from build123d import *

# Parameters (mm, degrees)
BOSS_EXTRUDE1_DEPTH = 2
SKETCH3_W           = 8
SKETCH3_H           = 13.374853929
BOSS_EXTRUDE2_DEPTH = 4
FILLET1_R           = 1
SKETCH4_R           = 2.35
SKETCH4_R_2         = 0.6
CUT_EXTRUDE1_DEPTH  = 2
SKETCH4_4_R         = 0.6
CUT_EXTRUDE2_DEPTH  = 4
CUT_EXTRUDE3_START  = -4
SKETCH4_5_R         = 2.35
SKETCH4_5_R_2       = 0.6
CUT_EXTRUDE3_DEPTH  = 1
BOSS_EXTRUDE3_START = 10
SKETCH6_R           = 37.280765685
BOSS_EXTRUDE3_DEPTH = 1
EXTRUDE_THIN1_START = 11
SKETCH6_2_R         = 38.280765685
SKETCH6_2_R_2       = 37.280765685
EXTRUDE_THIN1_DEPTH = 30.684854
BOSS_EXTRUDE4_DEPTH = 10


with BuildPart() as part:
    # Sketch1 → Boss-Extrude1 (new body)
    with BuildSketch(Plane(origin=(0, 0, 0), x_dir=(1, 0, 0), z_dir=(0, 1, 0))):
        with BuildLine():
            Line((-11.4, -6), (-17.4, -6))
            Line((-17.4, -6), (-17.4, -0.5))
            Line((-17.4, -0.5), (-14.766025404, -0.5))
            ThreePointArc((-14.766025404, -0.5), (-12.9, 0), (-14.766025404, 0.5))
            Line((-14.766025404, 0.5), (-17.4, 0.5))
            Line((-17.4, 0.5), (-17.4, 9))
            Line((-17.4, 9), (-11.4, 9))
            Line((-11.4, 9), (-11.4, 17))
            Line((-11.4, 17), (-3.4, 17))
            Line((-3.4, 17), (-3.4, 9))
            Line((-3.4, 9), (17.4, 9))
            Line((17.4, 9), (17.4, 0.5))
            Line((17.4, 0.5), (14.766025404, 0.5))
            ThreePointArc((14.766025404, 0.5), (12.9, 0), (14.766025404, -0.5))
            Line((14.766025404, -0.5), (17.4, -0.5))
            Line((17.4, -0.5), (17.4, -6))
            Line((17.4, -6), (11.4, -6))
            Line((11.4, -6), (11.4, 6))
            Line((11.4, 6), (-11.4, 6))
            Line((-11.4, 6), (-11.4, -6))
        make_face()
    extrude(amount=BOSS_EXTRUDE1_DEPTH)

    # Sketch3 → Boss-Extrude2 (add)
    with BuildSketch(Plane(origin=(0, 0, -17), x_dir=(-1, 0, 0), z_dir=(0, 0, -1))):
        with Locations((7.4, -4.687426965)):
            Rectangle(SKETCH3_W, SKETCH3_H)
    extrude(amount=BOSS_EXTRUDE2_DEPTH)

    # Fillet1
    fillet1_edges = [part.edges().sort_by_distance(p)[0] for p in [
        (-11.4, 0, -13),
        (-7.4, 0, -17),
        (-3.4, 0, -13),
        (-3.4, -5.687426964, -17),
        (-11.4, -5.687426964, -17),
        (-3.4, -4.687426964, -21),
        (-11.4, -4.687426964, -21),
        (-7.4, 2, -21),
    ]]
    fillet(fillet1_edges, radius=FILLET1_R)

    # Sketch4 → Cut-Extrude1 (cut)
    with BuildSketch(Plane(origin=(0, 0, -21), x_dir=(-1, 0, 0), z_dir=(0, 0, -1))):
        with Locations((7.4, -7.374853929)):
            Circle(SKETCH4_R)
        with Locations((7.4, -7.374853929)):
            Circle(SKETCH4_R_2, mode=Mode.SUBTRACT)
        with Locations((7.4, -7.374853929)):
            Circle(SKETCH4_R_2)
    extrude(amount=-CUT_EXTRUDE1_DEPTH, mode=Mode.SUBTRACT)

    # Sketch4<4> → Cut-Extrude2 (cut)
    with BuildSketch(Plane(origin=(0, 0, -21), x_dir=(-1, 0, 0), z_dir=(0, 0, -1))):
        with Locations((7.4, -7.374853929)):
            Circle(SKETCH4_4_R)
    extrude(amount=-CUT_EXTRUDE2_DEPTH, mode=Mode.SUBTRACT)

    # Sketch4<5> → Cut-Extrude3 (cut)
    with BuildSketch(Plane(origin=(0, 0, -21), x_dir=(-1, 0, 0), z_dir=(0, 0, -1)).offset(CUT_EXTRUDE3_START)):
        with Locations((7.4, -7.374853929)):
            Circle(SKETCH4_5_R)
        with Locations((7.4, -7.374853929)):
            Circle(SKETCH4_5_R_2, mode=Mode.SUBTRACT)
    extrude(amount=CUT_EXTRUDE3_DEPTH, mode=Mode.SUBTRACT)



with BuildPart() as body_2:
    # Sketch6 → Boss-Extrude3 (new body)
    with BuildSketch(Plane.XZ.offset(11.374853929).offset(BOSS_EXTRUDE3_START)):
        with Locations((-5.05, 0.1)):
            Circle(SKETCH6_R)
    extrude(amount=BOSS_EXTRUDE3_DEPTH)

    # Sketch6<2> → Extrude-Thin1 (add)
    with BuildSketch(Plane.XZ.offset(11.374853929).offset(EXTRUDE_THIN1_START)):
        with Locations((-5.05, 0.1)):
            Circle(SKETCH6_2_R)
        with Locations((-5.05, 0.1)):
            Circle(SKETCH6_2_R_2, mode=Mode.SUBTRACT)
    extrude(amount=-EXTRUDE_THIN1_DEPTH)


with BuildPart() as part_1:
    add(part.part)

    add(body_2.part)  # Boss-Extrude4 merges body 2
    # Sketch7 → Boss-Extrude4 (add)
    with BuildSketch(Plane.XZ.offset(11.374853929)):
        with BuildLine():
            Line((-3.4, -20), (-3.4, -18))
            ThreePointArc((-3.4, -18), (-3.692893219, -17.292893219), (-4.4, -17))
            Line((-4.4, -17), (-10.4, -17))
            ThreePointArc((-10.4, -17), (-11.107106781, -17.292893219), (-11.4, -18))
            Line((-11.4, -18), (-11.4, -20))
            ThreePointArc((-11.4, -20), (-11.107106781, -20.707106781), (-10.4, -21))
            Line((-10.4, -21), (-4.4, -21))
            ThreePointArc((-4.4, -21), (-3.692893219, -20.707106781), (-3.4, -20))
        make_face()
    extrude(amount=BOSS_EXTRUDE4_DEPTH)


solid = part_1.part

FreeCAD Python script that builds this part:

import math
import FreeCAD as App
import Part
import Sketcher


def edges_at(feature, points):
    """Names of the edges that pass closest to the given points."""
    edges = feature.Shape.Edges
    near = lambda p: min(range(len(edges)), key=lambda i: edges[i].distToShape(Part.Vertex(*p))[0])
    return sorted({f"Edge{near(p) + 1}" for p in points})

doc = App.newDocument("Part")
body = doc.addObject("PartDesign::Body", "Body")

# Sketch on XZ plane
sketch1 = body.newObject("Sketcher::SketchObject", "Sketch")
sketch1.AttachmentSupport = (doc.getObject("XZ_Plane"), [""])
sketch1.MapMode = "FlatFace"
sketch1.addGeometry([
    Part.LineSegment(App.Vector(-17.4, 6, 0), App.Vector(-11.4, 6, 0)),  # 0
    Part.LineSegment(App.Vector(-11.4, 6, 0), App.Vector(-11.4, -6, 0)),  # 1
    Part.LineSegment(App.Vector(-11.4, -6, 0), App.Vector(11.4, -6, 0)),  # 2
    Part.LineSegment(App.Vector(11.4, -6, 0), App.Vector(11.4, 6, 0)),  # 3
    Part.LineSegment(App.Vector(11.4, 6, 0), App.Vector(17.4, 6, 0)),  # 4
    Part.LineSegment(App.Vector(17.4, 6, 0), App.Vector(17.4, 0.5, 0)),  # 5
    Part.LineSegment(App.Vector(17.4, 0.5, 0), App.Vector(14.8, 0.5, 0)),  # 6
    Part.ArcOfCircle(Part.Circle(App.Vector(13.9, 0, 0), App.Vector(0, 0, 1), 1), math.radians(30), math.radians(330)),  # 7
    Part.LineSegment(App.Vector(14.8, -0.5, 0), App.Vector(17.4, -0.5, 0)),  # 8
    Part.LineSegment(App.Vector(17.4, -0.5, 0), App.Vector(17.4, -9, 0)),  # 9
    Part.LineSegment(App.Vector(17.4, -9, 0), App.Vector(-3.4, -9, 0)),  # 10
    Part.LineSegment(App.Vector(-3.4, -9, 0), App.Vector(-3.4, -17, 0)),  # 11
    Part.LineSegment(App.Vector(-3.4, -17, 0), App.Vector(-11.4, -17, 0)),  # 12
    Part.LineSegment(App.Vector(-11.4, -17, 0), App.Vector(-11.4, -9, 0)),  # 13
    Part.LineSegment(App.Vector(-11.4, -9, 0), App.Vector(-17.4, -9, 0)),  # 14
    Part.LineSegment(App.Vector(-17.4, -9, 0), App.Vector(-17.4, -0.5, 0)),  # 15
    Part.LineSegment(App.Vector(-17.4, -0.5, 0), App.Vector(-14.8, -0.5, 0)),  # 16
    Part.ArcOfCircle(Part.Circle(App.Vector(-13.9, 0, 0), App.Vector(0, 0, 1), 1), math.radians(-150), math.radians(150)),  # 17
    Part.LineSegment(App.Vector(-14.8, 0.5, 0), App.Vector(-17.4, 0.5, 0)),  # 18
    Part.LineSegment(App.Vector(-17.4, 0.5, 0), App.Vector(-17.4, 6, 0)),  # 19
], False)
sketch1.addConstraint([
    Sketcher.Constraint("Coincident", 0, 2, 1, 1),
    Sketcher.Constraint("Coincident", 1, 2, 2, 1),
    Sketcher.Constraint("Coincident", 2, 2, 3, 1),
    Sketcher.Constraint("Coincident", 3, 2, 4, 1),
    Sketcher.Constraint("Coincident", 4, 2, 5, 1),
    Sketcher.Constraint("Coincident", 5, 2, 6, 1),
    Sketcher.Constraint("Coincident", 6, 2, 7, 1),
    Sketcher.Constraint("Coincident", 7, 2, 8, 1),
    Sketcher.Constraint("Coincident", 8, 2, 9, 1),
    Sketcher.Constraint("Coincident", 9, 2, 10, 1),
    Sketcher.Constraint("Coincident", 10, 2, 11, 1),
    Sketcher.Constraint("Coincident", 11, 2, 12, 1),
    Sketcher.Constraint("Coincident", 12, 2, 13, 1),
    Sketcher.Constraint("Coincident", 13, 2, 14, 1),
    Sketcher.Constraint("Coincident", 14, 2, 15, 1),
    Sketcher.Constraint("Coincident", 15, 2, 16, 1),
    Sketcher.Constraint("Coincident", 16, 2, 17, 1),
    Sketcher.Constraint("Coincident", 17, 2, 18, 1),
    Sketcher.Constraint("Coincident", 18, 2, 19, 1),
    Sketcher.Constraint("Coincident", 19, 2, 0, 1),
    Sketcher.Constraint("Horizontal", 0),
    Sketcher.Constraint("Vertical", 1),
    Sketcher.Constraint("Horizontal", 2),
    Sketcher.Constraint("Vertical", 3),
    Sketcher.Constraint("Horizontal", 4),
    Sketcher.Constraint("Vertical", 5),
    Sketcher.Constraint("Horizontal", 6),
    Sketcher.Constraint("Horizontal", 8),
    Sketcher.Constraint("Vertical", 9),
    Sketcher.Constraint("Horizontal", 10),
    Sketcher.Constraint("Vertical", 11),
    Sketcher.Constraint("Horizontal", 12),
    Sketcher.Constraint("Vertical", 13),
    Sketcher.Constraint("Horizontal", 14),
    Sketcher.Constraint("Vertical", 15),
    Sketcher.Constraint("Horizontal", 16),
    Sketcher.Constraint("Horizontal", 18),
    Sketcher.Constraint("Vertical", 19),
    Sketcher.Constraint("Equal", 7, 17),
    Sketcher.Constraint("Symmetric", 7, 3, 17, 3, -1, 1),
    Sketcher.Constraint("Symmetric", 0, 2, 2, 2, -1, 1),
    Sketcher.Constraint("Symmetric", 5, 2, 15, 2, -1, 1),
    Sketcher.Constraint("Symmetric", 8, 2, 18, 2, -1, 1),
    Sketcher.Constraint("Symmetric", 9, 2, 14, 2, -2),
    Sketcher.Constraint("Symmetric", 7, 2, 16, 2, -2),
    Sketcher.Constraint("Horizontal", 0, 2, 3, 2),
    Sketcher.Constraint("Vertical", 1, 2, 12, 2),
    Sketcher.Constraint("Equal", 12, 11),
    Sketcher.Constraint("Radius", 7, 1.0),
    Sketcher.Constraint("DistanceX", 0, 1, 0, 2, 6.0),
    Sketcher.Constraint("DistanceX", 12, 2, 12, 1, 8.0),
    Sketcher.Constraint("DistanceY", 1, 2, 1, 1, 12.0),
    Sketcher.Constraint("DistanceX", 2, 1, 2, 2, 22.8),
    Sketcher.Constraint("DistanceY", 5, 2, 5, 1, 5.5),
    Sketcher.Constraint("DistanceY", 9, 2, 9, 1, 8.5),
    Sketcher.Constraint("DistanceX", -1, 1, 7, 3, 13.9),
])
pad1 = body.newObject("PartDesign::Pad", "Pad")
pad1.Profile = sketch1
pad1.Length = 2
pad1.Reversed = True

# Sketch on XY plane
sketch2 = body.newObject("Sketcher::SketchObject", "Sketch001")
sketch2.AttachmentSupport = (doc.getObject("XY_Plane"), [""])
sketch2.MapMode = "FlatFace"
sketch2.AttachmentOffset = App.Placement(App.Vector(0, 0, -17), App.Rotation())
sketch2.addGeometry([
    Part.LineSegment(App.Vector(-3, 2, 0), App.Vector(-3, -11, 0)),
    Part.LineSegment(App.Vector(-3, -11, 0), App.Vector(-11, -11, 0)),
    Part.LineSegment(App.Vector(-11, -11, 0), App.Vector(-11, 2, 0)),
    Part.LineSegment(App.Vector(-11, 2, 0), App.Vector(-3, 2, 0)),
], False)
sketch2.addConstraint([
    Sketcher.Constraint("Coincident", 0, 2, 1, 1),
    Sketcher.Constraint("Coincident", 1, 2, 2, 1),
    Sketcher.Constraint("Coincident", 2, 2, 3, 1),
    Sketcher.Constraint("Coincident", 3, 2, 0, 1),
    Sketcher.Constraint("Vertical", 0),
    Sketcher.Constraint("Horizontal", 1),
    Sketcher.Constraint("Vertical", 2),
    Sketcher.Constraint("Horizontal", 3),
    Sketcher.Constraint("DistanceX", 1, 2, 1, 1, 8.0),
    Sketcher.Constraint("DistanceY", -1, 1, 2, 2, 2.0),
    Sketcher.Constraint("DistanceX", 0, 2, -1, 1, 3.4),
    Sketcher.Constraint("DistanceY", 0, 2, 0, 1, 13.374854),
])
pad2 = body.newObject("PartDesign::Pad", "Pad001")
pad2.Profile = sketch2
pad2.Length = 4
pad2.Reversed = True
doc.recompute()

fillet = body.newObject("PartDesign::Fillet", "Fillet")
fillet.Base = (pad2, edges_at(pad2, [
    (-11.4, 0, -13),
    (-7.4, 0, -17),
    (-3.4, 0, -13),
    (-3.4, -5.687, -17),
    (-11.4, -5.687, -17),
    (-3.4, -4.687, -21),
    (-11.4, -4.687, -21),
    (-7.4, 2, -21),
]))
fillet.Radius = 1

# Sketch on XY plane
sketch3 = body.newObject("Sketcher::SketchObject", "Sketch002")
sketch3.AttachmentSupport = (doc.getObject("XY_Plane"), [""])
sketch3.MapMode = "FlatFace"
sketch3.AttachmentOffset = App.Placement(App.Vector(0, 0, -21), App.Rotation())
sketch3.addGeometry(Part.Circle(App.Vector(-7.4, -7.4, 0), App.Vector(0, 0, 1), 2.4), False)
sketch3.addConstraint([
    Sketcher.Constraint("Diameter", 0, 4.7),
    Sketcher.Constraint("DistanceX", 0, 3, -1, 1, 7.4),
    Sketcher.Constraint("DistanceY", 0, 3, -1, 1, 7.374854),
])
pocket1 = body.newObject("PartDesign::Pocket", "Pocket")
pocket1.Profile = sketch3
pocket1.Length = 2
pocket1.Reversed = True

# Sketch on XY plane
sketch4 = body.newObject("Sketcher::SketchObject", "Sketch003")
sketch4.AttachmentSupport = (doc.getObject("XY_Plane"), [""])
sketch4.MapMode = "FlatFace"
sketch4.AttachmentOffset = App.Placement(App.Vector(0, 0, -21), App.Rotation())
sketch4.addGeometry(Part.Circle(App.Vector(-7.4, -7.4, 0), App.Vector(0, 0, 1), 0.6), False)
sketch4.addConstraint([
    Sketcher.Constraint("Diameter", 0, 1.2),
    Sketcher.Constraint("DistanceX", 0, 3, -1, 1, 7.4),
    Sketcher.Constraint("DistanceY", 0, 3, -1, 1, 7.374854),
])
pocket2 = body.newObject("PartDesign::Pocket", "Pocket001")
pocket2.Profile = sketch4
pocket2.Length = 4
pocket2.Reversed = True

# Sketch on XY plane
sketch5 = body.newObject("Sketcher::SketchObject", "Sketch004")
sketch5.AttachmentSupport = (doc.getObject("XY_Plane"), [""])
sketch5.MapMode = "FlatFace"
sketch5.AttachmentOffset = App.Placement(App.Vector(0, 0, -17), App.Rotation())
sketch5.addGeometry([
    Part.Circle(App.Vector(-7.4, -7.4, 0), App.Vector(0, 0, 1), 2.4),
    Part.Circle(App.Vector(-7.4, -7.4, 0), App.Vector(0, 0, 1), 0.6),
], False)
sketch5.addConstraint([
    Sketcher.Constraint("Coincident", 1, 3, 0, 3),
    Sketcher.Constraint("Diameter", 0, 4.7),
    Sketcher.Constraint("Diameter", 1, 1.2),
    Sketcher.Constraint("DistanceX", 0, 3, -1, 1, 7.4),
    Sketcher.Constraint("DistanceY", 0, 3, -1, 1, 7.374854),
])
pocket3 = body.newObject("PartDesign::Pocket", "Pocket002")
pocket3.Profile = sketch5
pocket3.Length = 1
body2 = doc.addObject("PartDesign::Body", "Body001")

# Sketch on XZ plane
sketch6 = body2.newObject("Sketcher::SketchObject", "Sketch005")
sketch6.AttachmentSupport = (doc.getObject("XZ_Plane001"), [""])
sketch6.MapMode = "FlatFace"
sketch6.AttachmentOffset = App.Placement(App.Vector(0, 0, 21.374854), App.Rotation())
sketch6.addGeometry(Part.Circle(App.Vector(-5, 0, 0), App.Vector(0, 0, 1), 37), False)
sketch6.addConstraint([
    Sketcher.Constraint("DistanceY", -1, 1, 0, 3, 0.1),
    Sketcher.Constraint("Diameter", 0, 74.561531),
    Sketcher.Constraint("DistanceX", 0, 3, -1, 1, 5.05),
])
pad3 = body2.newObject("PartDesign::Pad", "Pad002")
pad3.Profile = sketch6
pad3.Length = 1

# Sketch on XZ plane
sketch7 = body2.newObject("Sketcher::SketchObject", "Sketch006")
sketch7.AttachmentSupport = (doc.getObject("XZ_Plane001"), [""])
sketch7.MapMode = "FlatFace"
sketch7.AttachmentOffset = App.Placement(App.Vector(0, 0, 22.374854), App.Rotation())
sketch7.addGeometry([
    Part.Circle(App.Vector(-5, 0, 0), App.Vector(0, 0, 1), 38),
    Part.Circle(App.Vector(-5, 0, 0), App.Vector(0, 0, 1), 37),
], False)
sketch7.addConstraint([
    Sketcher.Constraint("Coincident", 1, 3, 0, 3),
    Sketcher.Constraint("DistanceY", -1, 1, 0, 3, 0.1),
    Sketcher.Constraint("Diameter", 0, 76.561531),
    Sketcher.Constraint("Diameter", 1, 74.561531),
    Sketcher.Constraint("DistanceX", 0, 3, -1, 1, 5.05),
])
pad4 = body2.newObject("PartDesign::Pad", "Pad003")
pad4.Profile = sketch7
pad4.Length = 30.684854
pad4.Reversed = True
body.AllowCompound = True
doc.recompute()

boolean = body.newObject("PartDesign::Boolean", "Boolean")
boolean.Type = "Fuse"
boolean.addObjects([body2])

# Sketch on XZ plane
sketch8 = body.newObject("Sketcher::SketchObject", "Sketch007")
sketch8.AttachmentSupport = (doc.getObject("XZ_Plane"), [""])
sketch8.MapMode = "FlatFace"
sketch8.AttachmentOffset = App.Placement(App.Vector(0, 0, 11.374854), App.Rotation())
sketch8.addGeometry([
    Part.LineSegment(App.Vector(-3.4, -20, 0), App.Vector(-3.4, -18, 0)),  # 0
    Part.ArcOfCircle(Part.Circle(App.Vector(-4.4, -18, 0), App.Vector(0, 0, 1), 1), math.radians(0), math.radians(90)),  # 1
    Part.LineSegment(App.Vector(-4.4, -17, 0), App.Vector(-10.4, -17, 0)),  # 2
    Part.ArcOfCircle(Part.Circle(App.Vector(-10.4, -18, 0), App.Vector(0, 0, 1), 1), math.radians(90), math.radians(180)),  # 3
    Part.LineSegment(App.Vector(-11.4, -18, 0), App.Vector(-11.4, -20, 0)),  # 4
    Part.ArcOfCircle(Part.Circle(App.Vector(-10.4, -20, 0), App.Vector(0, 0, 1), 1), math.radians(-180), math.radians(-90)),  # 5
    Part.LineSegment(App.Vector(-10.4, -21, 0), App.Vector(-4.4, -21, 0)),  # 6
    Part.ArcOfCircle(Part.Circle(App.Vector(-4.4, -20, 0), App.Vector(0, 0, 1), 1), math.radians(-90), math.radians(0)),  # 7
], False)
sketch8.addConstraint([
    Sketcher.Constraint("Tangent", 0, 2, 1, 1),
    Sketcher.Constraint("Tangent", 1, 2, 2, 1),
    Sketcher.Constraint("Tangent", 2, 2, 3, 1),
    Sketcher.Constraint("Tangent", 3, 2, 4, 1),
    Sketcher.Constraint("Tangent", 4, 2, 5, 1),
    Sketcher.Constraint("Tangent", 5, 2, 6, 1),
    Sketcher.Constraint("Tangent", 6, 2, 7, 1),
    Sketcher.Constraint("Tangent", 7, 2, 0, 1),
    Sketcher.Constraint("Vertical", 0),
    Sketcher.Constraint("Horizontal", 2),
    Sketcher.Constraint("Vertical", 4),
    Sketcher.Constraint("Horizontal", 6),
    Sketcher.Constraint("Equal", 1, 3),
    Sketcher.Constraint("Equal", 3, 5),
    Sketcher.Constraint("Equal", 5, 7),
    Sketcher.Constraint("Radius", 1, 1.0),
    Sketcher.Constraint("DistanceX", 2, 2, 2, 1, 6.0),
    Sketcher.Constraint("DistanceY", 0, 1, 0, 2, 2.0),
    Sketcher.Constraint("DistanceY", 1, 3, -1, 1, 18.0),
    Sketcher.Constraint("DistanceX", 1, 3, -1, 1, 4.4),
])
pad5 = body.newObject("PartDesign::Pad", "Pad004")
pad5.Profile = sketch8
pad5.Length = 10

doc.recompute()
